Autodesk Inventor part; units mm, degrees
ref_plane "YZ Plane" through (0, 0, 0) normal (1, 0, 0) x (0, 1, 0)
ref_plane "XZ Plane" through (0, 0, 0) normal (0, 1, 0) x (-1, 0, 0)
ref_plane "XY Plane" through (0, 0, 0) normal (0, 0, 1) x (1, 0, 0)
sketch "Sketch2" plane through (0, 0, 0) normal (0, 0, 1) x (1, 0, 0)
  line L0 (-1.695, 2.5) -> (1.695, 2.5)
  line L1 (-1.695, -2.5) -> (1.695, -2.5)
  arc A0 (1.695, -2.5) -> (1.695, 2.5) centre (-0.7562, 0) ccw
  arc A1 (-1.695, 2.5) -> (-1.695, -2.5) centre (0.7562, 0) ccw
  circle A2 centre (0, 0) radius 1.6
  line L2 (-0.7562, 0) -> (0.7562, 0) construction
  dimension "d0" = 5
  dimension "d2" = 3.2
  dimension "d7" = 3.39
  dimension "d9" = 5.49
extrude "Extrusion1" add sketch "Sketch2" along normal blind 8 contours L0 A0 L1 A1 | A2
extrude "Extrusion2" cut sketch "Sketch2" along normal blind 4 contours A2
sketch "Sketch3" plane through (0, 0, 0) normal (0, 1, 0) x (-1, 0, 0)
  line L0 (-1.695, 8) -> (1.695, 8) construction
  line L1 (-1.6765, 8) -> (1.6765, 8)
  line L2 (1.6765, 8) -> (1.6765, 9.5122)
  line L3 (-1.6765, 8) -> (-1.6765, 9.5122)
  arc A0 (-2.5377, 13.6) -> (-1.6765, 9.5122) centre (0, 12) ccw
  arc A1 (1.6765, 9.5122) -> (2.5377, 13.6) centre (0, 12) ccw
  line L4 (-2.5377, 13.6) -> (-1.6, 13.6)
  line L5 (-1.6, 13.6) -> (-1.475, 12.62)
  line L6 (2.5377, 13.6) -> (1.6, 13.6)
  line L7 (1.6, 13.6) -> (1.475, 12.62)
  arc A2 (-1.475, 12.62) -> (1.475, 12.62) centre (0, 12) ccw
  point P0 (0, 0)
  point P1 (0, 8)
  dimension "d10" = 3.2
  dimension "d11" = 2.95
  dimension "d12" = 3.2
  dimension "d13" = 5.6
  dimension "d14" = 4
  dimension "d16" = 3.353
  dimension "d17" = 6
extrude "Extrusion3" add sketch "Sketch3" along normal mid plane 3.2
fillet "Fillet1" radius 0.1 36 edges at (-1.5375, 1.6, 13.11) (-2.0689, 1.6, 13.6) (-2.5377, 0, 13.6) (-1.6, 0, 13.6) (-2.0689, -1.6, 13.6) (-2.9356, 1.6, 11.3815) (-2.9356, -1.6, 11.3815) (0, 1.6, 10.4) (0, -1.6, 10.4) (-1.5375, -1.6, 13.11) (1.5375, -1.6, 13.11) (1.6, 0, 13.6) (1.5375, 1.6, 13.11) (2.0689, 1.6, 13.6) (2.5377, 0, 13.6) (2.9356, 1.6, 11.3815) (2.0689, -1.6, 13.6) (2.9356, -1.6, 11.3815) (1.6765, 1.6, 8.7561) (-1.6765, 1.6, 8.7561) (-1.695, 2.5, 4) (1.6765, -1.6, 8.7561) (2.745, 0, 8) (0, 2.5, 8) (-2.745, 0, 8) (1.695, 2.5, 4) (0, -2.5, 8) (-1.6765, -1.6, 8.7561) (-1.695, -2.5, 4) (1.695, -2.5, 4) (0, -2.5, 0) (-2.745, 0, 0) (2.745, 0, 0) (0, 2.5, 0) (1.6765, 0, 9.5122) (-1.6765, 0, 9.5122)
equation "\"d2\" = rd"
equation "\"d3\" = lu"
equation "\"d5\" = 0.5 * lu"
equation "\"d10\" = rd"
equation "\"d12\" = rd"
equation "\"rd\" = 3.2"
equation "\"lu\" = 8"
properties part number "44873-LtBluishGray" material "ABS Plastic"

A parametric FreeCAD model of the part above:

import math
import FreeCAD as App
import Part
import Sketcher
Q = App.Units.Quantity


def edges_at(feature, points):
    """Names of the edges that pass closest to the given points."""
    edges = feature.Shape.Edges
    near = lambda p: min(range(len(edges)), key=lambda i: edges[i].distToShape(Part.Vertex(*p))[0])
    return sorted({f"Edge{near(p) + 1}" for p in points})

doc = App.newDocument("Part")
body = doc.addObject("PartDesign::Body", "Body")

# Sketch on XY plane
sketch1 = doc.addObject("Sketcher::SketchObject", "Sketch")
body.addObject(sketch1)
sketch1.AttachmentSupport = (doc.XY_Plane, [""])
sketch1.MapMode = "FlatFace"
sketch1.addGeometry(Part.LineSegment(App.Vector(1.7, 2.5, 0), App.Vector(-1.7, 2.5, 0)), False)
sketch1.addGeometry(Part.ArcOfCircle(Part.Circle(App.Vector(0.8, 0, 0), App.Vector(0, 0, 1), 3.5), math.radians(134), math.radians(226)), False)
sketch1.addGeometry(Part.LineSegment(App.Vector(-1.7, -2.5, 0), App.Vector(1.7, -2.5, 0)), False)
sketch1.addGeometry(Part.ArcOfCircle(Part.Circle(App.Vector(-0.8, 0, 0), App.Vector(0, 0, 1), 3.5), math.radians(-46), math.radians(46)), False)
sketch1.addConstraint(Sketcher.Constraint("Coincident", 0, 2, 1, 1))
sketch1.addConstraint(Sketcher.Constraint("Coincident", 1, 2, 2, 1))
sketch1.addConstraint(Sketcher.Constraint("Coincident", 2, 2, 3, 1))
sketch1.addConstraint(Sketcher.Constraint("Coincident", 3, 2, 0, 1))
sketch1.addConstraint(Sketcher.Constraint("Horizontal", 0))
sketch1.addConstraint(Sketcher.Constraint("Horizontal", 2))
sketch1.addConstraint(Sketcher.Constraint("Equal", 1, 3))
sketch1.addConstraint(Sketcher.Constraint("Symmetric", 1, 3, 3, 3, -1, 1))
sketch1.addConstraint(Sketcher.Constraint("Symmetric", 0, 2, 1, 2, -1))
sketch1.addConstraint(Sketcher.Constraint("DistanceY", 1, 2, 0, 2, Q("5 mm")))
sketch1.addConstraint(Sketcher.Constraint("DistanceX", 0, 2, 0, 1, Q("3.39 mm")))
sketch1.addConstraint(Sketcher.Constraint("Radius", 1, Q("3.5012 mm")))
pad1 = doc.addObject("PartDesign::Pad", "Pad")
body.addObject(pad1)
pad1.Profile = sketch1
pad1.Length = 8

# Sketch on XY plane
sketch2 = doc.addObject("Sketcher::SketchObject", "Sketch001")
body.addObject(sketch2)
sketch2.AttachmentSupport = (doc.XY_Plane, [""])
sketch2.MapMode = "FlatFace"
sketch2.addGeometry(Part.Circle(App.Vector(0, 0, 0), App.Vector(0, 0, 1), 1.6), False)
sketch2.addConstraint(Sketcher.Constraint("Coincident", 0, 3, -1, 1))
sketch2.addConstraint(Sketcher.Constraint("Diameter", 0, Q("3.2 mm")))
pocket1 = doc.addObject("PartDesign::Pocket", "Pocket")
body.addObject(pocket1)
pocket1.Profile = sketch2
pocket1.Length = 4
pocket1.Reversed = True

# Sketch on XZ plane
sketch3 = doc.addObject("Sketcher::SketchObject", "Sketch002")
body.addObject(sketch3)
sketch3.AttachmentSupport = (doc.XZ_Plane, [""])
sketch3.MapMode = "FlatFace"
sketch3.addGeometry(Part.LineSegment(App.Vector(1.7, 9.5, 0), App.Vector(1.7, 8, 0)), False)
sketch3.addGeometry(Part.LineSegment(App.Vector(1.7, 8, 0), App.Vector(-1.7, 8, 0)), False)
sketch3.addGeometry(Part.LineSegment(App.Vector(-1.7, 8, 0), App.Vector(-1.7, 9.5, 0)), False)
sketch3.addGeometry(Part.ArcOfCircle(Part.Circle(App.Vector(0, 12, 0), App.Vector(0, 0, 1), 3), math.radians(148), math.radians(236)), False)
sketch3.addGeometry(Part.LineSegment(App.Vector(-2.5, 13.6, 0), App.Vector(-1.6, 13.6, 0)), False)
sketch3.addGeometry(Part.LineSegment(App.Vector(-1.6, 13.6, 0), App.Vector(-1.5, 12.6, 0)), False)
sketch3.addGeometry(Part.ArcOfCircle(Part.Circle(App.Vector(0, 12, 0), App.Vector(0, 0, 1), 1.6), math.radians(157), math.radians(383)), False)
sketch3.addGeometry(Part.LineSegment(App.Vector(1.5, 12.6, 0), App.Vector(1.6, 13.6, 0)), False)
sketch3.addGeometry(Part.LineSegment(App.Vector(1.6, 13.6, 0), App.Vector(2.5, 13.6, 0)), False)
sketch3.addGeometry(Part.ArcOfCircle(Part.Circle(App.Vector(0, 12, 0), App.Vector(0, 0, 1), 3), math.radians(-56), math.radians(32)), False)
sketch3.addConstraint(Sketcher.Constraint("Coincident", 0, 2, 1, 1))
sketch3.addConstraint(Sketcher.Constraint("Coincident", 1, 2, 2, 1))
sketch3.addConstraint(Sketcher.Constraint("Coincident", 2, 2, 3, 2))
sketch3.addConstraint(Sketcher.Constraint("Coincident", 3, 1, 4, 1))
sketch3.addConstraint(Sketcher.Constraint("Coincident", 4, 2, 5, 1))
sketch3.addConstraint(Sketcher.Constraint("Coincident", 5, 2, 6, 1))
sketch3.addConstraint(Sketcher.Constraint("Coincident", 6, 2, 7, 1))
sketch3.addConstraint(Sketcher.Constraint("Coincident", 7, 2, 8, 1))
sketch3.addConstraint(Sketcher.Constraint("Coincident", 8, 2, 9, 2))
sketch3.addConstraint(Sketcher.Constraint("Coincident", 9, 1, 0, 1))
sketch3.addConstraint(Sketcher.Constraint("Vertical", 0))
sketch3.addConstraint(Sketcher.Constraint("Horizontal", 1))
sketch3.addConstraint(Sketcher.Constraint("Vertical", 2))
sketch3.addConstraint(Sketcher.Constraint("Horizontal", 4))
sketch3.addConstraint(Sketcher.Constraint("Horizontal", 8))
sketch3.addConstraint(Sketcher.Constraint("Coincident", 6, 3, 3, 3))
sketch3.addConstraint(Sketcher.Constraint("Coincident", 9, 3, 3, 3))
sketch3.addConstraint(Sketcher.Constraint("Equal", 3, 9))
sketch3.addConstraint(Sketcher.Constraint("Symmetric", 5, 2, 6, 2, -2))
sketch3.addConstraint(Sketcher.Constraint("Symmetric", 4, 2, 7, 2, -2))
sketch3.addConstraint(Sketcher.Constraint("Horizontal", 2, 2, 9, 1))
sketch3.addConstraint(Sketcher.Constraint("Radius", 3, Q("3 mm")))
sketch3.addConstraint(Sketcher.Constraint("Radius", 6, Q("1.6 mm")))
sketch3.addConstraint(Sketcher.Constraint("DistanceY", 0, 2, 3, 3, Q("4 mm")))
sketch3.addConstraint(Sketcher.Constraint("DistanceY", 1, 2, 3, 1, Q("5.6 mm")))
sketch3.addConstraint(Sketcher.Constraint("DistanceX", 4, 2, 7, 2, Q("3.2 mm")))
sketch3.addConstraint(Sketcher.Constraint("DistanceX", 1, 2, 1, 1, Q("3.353 mm")))
sketch3.addConstraint(Sketcher.Constraint("DistanceX", 5, 2, 6, 2, Q("2.95 mm")))
sketch3.addConstraint(Sketcher.Constraint("DistanceY", -1, 1, 3, 3, Q("12 mm")))
pad2 = doc.addObject("PartDesign::Pad", "Pad001")
body.addObject(pad2)
pad2.Profile = sketch3
pad2.Length = 3.2
pad2.Midplane = True
doc.recompute()

fillet = doc.addObject("PartDesign::Fillet", "Fillet")
body.addObject(fillet)
fillet.Base = (pad2, edges_at(pad2, [
    (-1.538, 1.6, 13.11),
    (-2.069, 1.6, 13.6),
    (-2.538, 0, 13.6),
    (-1.6, 0, 13.6),
    (-2.069, -1.6, 13.6),
    (-2.936, 1.6, 11.382),
    (-2.936, -1.6, 11.382),
    (0, 1.6, 10.4),
    (0, -1.6, 10.4),
    (-1.538, -1.6, 13.11),
    (1.538, -1.6, 13.11),
    (1.6, 0, 13.6),
    (1.538, 1.6, 13.11),
    (2.069, 1.6, 13.6),
    (2.538, 0, 13.6),
    (2.936, 1.6, 11.382),
    (2.069, -1.6, 13.6),
    (2.936, -1.6, 11.382),
    (1.677, 1.6, 8.756),
    (-1.677, 1.6, 8.756),
    (-1.695, 2.5, 4),
    (1.677, -1.6, 8.756),
    (2.745, 0, 8),
    (0, 2.5, 8),
    (-2.745, 0, 8),
    (1.695, 2.5, 4),
    (0, -2.5, 8),
    (-1.677, -1.6, 8.756),
    (-1.695, -2.5, 4),
    (1.695, -2.5, 4),
    (0, -2.5, 0),
    (-2.745, 0, 0),
    (2.745, 0, 0),
    (0, 2.5, 0),
    (1.677, 0, 9.512),
    (-1.677, 0, 9.512),
]))
fillet.Radius = 0.1

doc.recompute()
